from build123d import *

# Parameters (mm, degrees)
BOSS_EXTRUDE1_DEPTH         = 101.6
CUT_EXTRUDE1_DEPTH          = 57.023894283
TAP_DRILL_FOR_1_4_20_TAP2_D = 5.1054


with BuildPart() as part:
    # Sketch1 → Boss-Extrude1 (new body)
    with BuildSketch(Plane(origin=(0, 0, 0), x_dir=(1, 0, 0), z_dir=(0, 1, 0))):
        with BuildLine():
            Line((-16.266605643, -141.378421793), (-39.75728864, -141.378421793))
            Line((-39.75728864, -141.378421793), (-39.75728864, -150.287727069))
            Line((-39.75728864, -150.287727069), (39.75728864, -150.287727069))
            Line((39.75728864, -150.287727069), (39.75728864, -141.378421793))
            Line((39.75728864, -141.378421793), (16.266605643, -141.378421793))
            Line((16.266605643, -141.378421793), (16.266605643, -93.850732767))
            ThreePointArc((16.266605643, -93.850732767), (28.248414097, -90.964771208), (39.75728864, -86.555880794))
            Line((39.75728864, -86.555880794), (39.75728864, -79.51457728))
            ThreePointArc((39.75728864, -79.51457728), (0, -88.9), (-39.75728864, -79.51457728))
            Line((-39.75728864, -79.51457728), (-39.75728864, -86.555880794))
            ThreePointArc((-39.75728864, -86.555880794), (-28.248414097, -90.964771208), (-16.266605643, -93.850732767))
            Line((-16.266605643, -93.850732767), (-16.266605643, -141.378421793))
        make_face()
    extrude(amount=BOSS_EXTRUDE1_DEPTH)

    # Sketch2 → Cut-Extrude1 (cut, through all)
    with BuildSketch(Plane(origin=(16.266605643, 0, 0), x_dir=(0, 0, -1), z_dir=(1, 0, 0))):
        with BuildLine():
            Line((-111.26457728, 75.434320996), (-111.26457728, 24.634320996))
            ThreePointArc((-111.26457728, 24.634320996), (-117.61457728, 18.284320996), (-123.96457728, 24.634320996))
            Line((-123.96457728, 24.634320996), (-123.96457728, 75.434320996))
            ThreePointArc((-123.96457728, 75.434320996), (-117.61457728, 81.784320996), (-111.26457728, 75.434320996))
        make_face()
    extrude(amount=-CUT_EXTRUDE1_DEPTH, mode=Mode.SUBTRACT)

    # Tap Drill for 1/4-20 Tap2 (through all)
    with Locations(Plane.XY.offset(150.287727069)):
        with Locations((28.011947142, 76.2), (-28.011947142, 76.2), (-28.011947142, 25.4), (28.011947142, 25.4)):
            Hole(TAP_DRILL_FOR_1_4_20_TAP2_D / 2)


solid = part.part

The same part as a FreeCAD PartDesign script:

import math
import FreeCAD as App
import Part
import Sketcher
Q = App.Units.Quantity

doc = App.newDocument("Part")
body = doc.addObject("PartDesign::Body", "Body")

sketch1 = body.newObject("Sketcher::SketchObject", "Sketch")
sketch1.AttachmentSupport = (doc.getObject("XZ_Plane"), [""])
sketch1.MapMode = "FlatFace"
sketch1.addGeometry(Part.LineSegment(App.Vector(-16, 141, 0), App.Vector(-40, 141, 0)), False)
sketch1.addGeometry(Part.LineSegment(App.Vector(-40, 141, 0), App.Vector(-40, 150, 0)), False)
sketch1.addGeometry(Part.LineSegment(App.Vector(-40, 150, 0), App.Vector(40, 150, 0)), False)
sketch1.addGeometry(Part.LineSegment(App.Vector(40, 150, 0), App.Vector(40, 141, 0)), False)
sketch1.addGeometry(Part.LineSegment(App.Vector(40, 141, 0), App.Vector(16, 141, 0)), False)
sketch1.addGeometry(Part.LineSegment(App.Vector(16, 141, 0), App.Vector(16, 94, 0)), False)
sketch1.addGeometry(Part.ArcOfCircle(Part.Circle(App.Vector(0, 0, 0), App.Vector(0, 0, 1), 95), math.radians(65.33), math.radians(80.17)), False)
sketch1.addGeometry(Part.LineSegment(App.Vector(40, 87, 0), App.Vector(40, 80, 0)), False)
sketch1.addGeometry(Part.ArcOfCircle(Part.Circle(App.Vector(0, 0, 0), App.Vector(0, 0, 1), 89), math.radians(63), math.radians(117)), False)
sketch1.addGeometry(Part.LineSegment(App.Vector(-40, 80, 0), App.Vector(-40, 87, 0)), False)
sketch1.addGeometry(Part.ArcOfCircle(Part.Circle(App.Vector(0, 0, 0), App.Vector(0, 0, 1), 95), math.radians(99.83), math.radians(114.67)), False)
sketch1.addGeometry(Part.LineSegment(App.Vector(-16, 94, 0), App.Vector(-16, 141, 0)), False)
sketch1.addConstraint(Sketcher.Constraint("Coincident", 0, 2, 1, 1))
sketch1.addConstraint(Sketcher.Constraint("Coincident", 1, 2, 2, 1))
sketch1.addConstraint(Sketcher.Constraint("Coincident", 2, 2, 3, 1))
sketch1.addConstraint(Sketcher.Constraint("Coincident", 3, 2, 4, 1))
sketch1.addConstraint(Sketcher.Constraint("Coincident", 4, 2, 5, 1))
sketch1.addConstraint(Sketcher.Constraint("Coincident", 5, 2, 6, 2))
sketch1.addConstraint(Sketcher.Constraint("Coincident", 6, 1, 7, 1))
sketch1.addConstraint(Sketcher.Constraint("Coincident", 7, 2, 8, 1))
sketch1.addConstraint(Sketcher.Constraint("Coincident", 8, 2, 9, 1))
sketch1.addConstraint(Sketcher.Constraint("Coincident", 9, 2, 10, 2))
sketch1.addConstraint(Sketcher.Constraint("Coincident", 10, 1, 11, 1))
sketch1.addConstraint(Sketcher.Constraint("Coincident", 11, 2, 0, 1))
sketch1.addConstraint(Sketcher.Constraint("Horizontal", 0))
sketch1.addConstraint(Sketcher.Constraint("Vertical", 1))
sketch1.addConstraint(Sketcher.Constraint("Horizontal", 2))
sketch1.addConstraint(Sketcher.Constraint("Vertical", 3))
sketch1.addConstraint(Sketcher.Constraint("Horizontal", 4))
sketch1.addConstraint(Sketcher.Constraint("Vertical", 5))
sketch1.addConstraint(Sketcher.Constraint("Vertical", 7))
sketch1.addConstraint(Sketcher.Constraint("Vertical", 9))
sketch1.addConstraint(Sketcher.Constraint("Vertical", 11))
sketch1.addConstraint(Sketcher.Constraint("Coincident", 6, 3, -1, 1))
sketch1.addConstraint(Sketcher.Constraint("Coincident", 8, 3, -1, 1))
sketch1.addConstraint(Sketcher.Constraint("Coincident", 10, 3, -1, 1))
sketch1.addConstraint(Sketcher.Constraint("Equal", 6, 10))
sketch1.addConstraint(Sketcher.Constraint("Symmetric", 0, 2, 3, 2, -2))
sketch1.addConstraint(Sketcher.Constraint("Horizontal", 7, 2, 8, 2))
sketch1.addConstraint(Sketcher.Constraint("Horizontal", 5, 2, 10, 1))
sketch1.addConstraint(Sketcher.Constraint("Vertical", 3, 2, 6, 1))
sketch1.addConstraint(Sketcher.Constraint("Radius", 8, Q("3.5 in")))
sketch1.addConstraint(Sketcher.Constraint("Radius", 6, Q("3.75 in")))
sketch1.addConstraint(Sketcher.Constraint("DistanceY", 5, 2, 5, 1, 47.527689))
sketch1.addConstraint(Sketcher.Constraint("DistanceX", 0, 2, 0, 1, 23.490683))
sketch1.addConstraint(Sketcher.Constraint("DistanceX", 2, 1, 2, 2, 79.514577))
sketch1.addConstraint(Sketcher.Constraint("DistanceY", 1, 1, 1, 2, 8.909305))
pad1 = body.newObject("PartDesign::Pad", "Pad")
pad1.Profile = sketch1
pad1.Length = Q("4 in")
pad1.Reversed = True

sketch2 = body.newObject("Sketcher::SketchObject", "Sketch001")
sketch2.AttachmentSupport = (doc.getObject("YZ_Plane"), [""])
sketch2.MapMode = "FlatFace"
sketch2.AttachmentOffset = App.Placement(App.Vector(0, 0, 16.266606), App.Rotation())
sketch2.addGeometry(Part.LineSegment(App.Vector(25, 111, 0), App.Vector(75, 111, 0)), False)
sketch2.addGeometry(Part.ArcOfCircle(Part.Circle(App.Vector(75, 118, 0), App.Vector(0, 0, 1), 6), math.radians(-90), math.radians(90)), False)
sketch2.addGeometry(Part.LineSegment(App.Vector(75, 124, 0), App.Vector(25, 124, 0)), False)
sketch2.addGeometry(Part.ArcOfCircle(Part.Circle(App.Vector(25, 118, 0), App.Vector(0, 0, 1), 6), math.radians(90), math.radians(270)), False)
sketch2.addConstraint(Sketcher.Constraint("Tangent", 0, 2, 1, 1))
sketch2.addConstraint(Sketcher.Constraint("Tangent", 1, 2, 2, 1))
sketch2.addConstraint(Sketcher.Constraint("Tangent", 2, 2, 3, 1))
sketch2.addConstraint(Sketcher.Constraint("Tangent", 3, 2, 0, 1))
sketch2.addConstraint(Sketcher.Constraint("Horizontal", 0))
sketch2.addConstraint(Sketcher.Constraint("Horizontal", 2))
sketch2.addConstraint(Sketcher.Constraint("DistanceX", 0, 1, 0, 2, Q("2 in")))
sketch2.addConstraint(Sketcher.Constraint("Radius", 1, Q("0.25 in")))
sketch2.addConstraint(Sketcher.Constraint("DistanceX", -1, 1, 1, 3, 75.434321))
sketch2.addConstraint(Sketcher.Constraint("DistanceY", -1, 1, 1, 3, 117.614577))
pocket1 = body.newObject("PartDesign::Pocket", "Pocket")
pocket1.Profile = sketch2
pocket1.Type = "ThroughAll"

sketch3 = body.newObject("Sketcher::SketchObject", "Sketch002")
sketch3.AttachmentSupport = (doc.getObject("XY_Plane"), [""])
sketch3.MapMode = "FlatFace"
sketch3.AttachmentOffset = App.Placement(App.Vector(0, 0, 150.287727), App.Rotation())
sketch3.addGeometry(Part.Circle(App.Vector(28, 76.2, 0), App.Vector(0, 0, 1), 2.6), False)
sketch3.addGeometry(Part.Circle(App.Vector(-28, 76.2, 0), App.Vector(0, 0, 1), 2.6), False)
sketch3.addGeometry(Part.Circle(App.Vector(-28, 25.4, 0), App.Vector(0, 0, 1), 2.6), False)
sketch3.addGeometry(Part.Circle(App.Vector(28, 25.4, 0), App.Vector(0, 0, 1), 2.6), False)
sketch3.addConstraint(Sketcher.Constraint("Equal", 0, 1))
sketch3.addConstraint(Sketcher.Constraint("Equal", 1, 2))
sketch3.addConstraint(Sketcher.Constraint("Equal", 2, 3))
sketch3.addConstraint(Sketcher.Constraint("Symmetric", 0, 3, 1, 3, -2))
sketch3.addConstraint(Sketcher.Constraint("Symmetric", 2, 3, 3, 3, -2))
sketch3.addConstraint(Sketcher.Constraint("Vertical", 1, 3, 2, 3))
sketch3.addConstraint(Sketcher.Constraint("Diameter", 0, Q("0.201 in")))
sketch3.addConstraint(Sketcher.Constraint("DistanceY", -1, 1, 0, 3, Q("3 in")))
sketch3.addConstraint(Sketcher.Constraint("DistanceY", -1, 1, 2, 3, Q("1 in")))
sketch3.addConstraint(Sketcher.Constraint("DistanceX", -1, 1, 0, 3, 28.011947))
doc.recompute()
hole = body.newObject("PartDesign::Hole", "Hole")
hole.Profile = sketch3
hole.ThreadType = "None"
hole.Diameter = Q("0.201 in")
hole.DepthType = "ThroughAll"

doc.recompute()
